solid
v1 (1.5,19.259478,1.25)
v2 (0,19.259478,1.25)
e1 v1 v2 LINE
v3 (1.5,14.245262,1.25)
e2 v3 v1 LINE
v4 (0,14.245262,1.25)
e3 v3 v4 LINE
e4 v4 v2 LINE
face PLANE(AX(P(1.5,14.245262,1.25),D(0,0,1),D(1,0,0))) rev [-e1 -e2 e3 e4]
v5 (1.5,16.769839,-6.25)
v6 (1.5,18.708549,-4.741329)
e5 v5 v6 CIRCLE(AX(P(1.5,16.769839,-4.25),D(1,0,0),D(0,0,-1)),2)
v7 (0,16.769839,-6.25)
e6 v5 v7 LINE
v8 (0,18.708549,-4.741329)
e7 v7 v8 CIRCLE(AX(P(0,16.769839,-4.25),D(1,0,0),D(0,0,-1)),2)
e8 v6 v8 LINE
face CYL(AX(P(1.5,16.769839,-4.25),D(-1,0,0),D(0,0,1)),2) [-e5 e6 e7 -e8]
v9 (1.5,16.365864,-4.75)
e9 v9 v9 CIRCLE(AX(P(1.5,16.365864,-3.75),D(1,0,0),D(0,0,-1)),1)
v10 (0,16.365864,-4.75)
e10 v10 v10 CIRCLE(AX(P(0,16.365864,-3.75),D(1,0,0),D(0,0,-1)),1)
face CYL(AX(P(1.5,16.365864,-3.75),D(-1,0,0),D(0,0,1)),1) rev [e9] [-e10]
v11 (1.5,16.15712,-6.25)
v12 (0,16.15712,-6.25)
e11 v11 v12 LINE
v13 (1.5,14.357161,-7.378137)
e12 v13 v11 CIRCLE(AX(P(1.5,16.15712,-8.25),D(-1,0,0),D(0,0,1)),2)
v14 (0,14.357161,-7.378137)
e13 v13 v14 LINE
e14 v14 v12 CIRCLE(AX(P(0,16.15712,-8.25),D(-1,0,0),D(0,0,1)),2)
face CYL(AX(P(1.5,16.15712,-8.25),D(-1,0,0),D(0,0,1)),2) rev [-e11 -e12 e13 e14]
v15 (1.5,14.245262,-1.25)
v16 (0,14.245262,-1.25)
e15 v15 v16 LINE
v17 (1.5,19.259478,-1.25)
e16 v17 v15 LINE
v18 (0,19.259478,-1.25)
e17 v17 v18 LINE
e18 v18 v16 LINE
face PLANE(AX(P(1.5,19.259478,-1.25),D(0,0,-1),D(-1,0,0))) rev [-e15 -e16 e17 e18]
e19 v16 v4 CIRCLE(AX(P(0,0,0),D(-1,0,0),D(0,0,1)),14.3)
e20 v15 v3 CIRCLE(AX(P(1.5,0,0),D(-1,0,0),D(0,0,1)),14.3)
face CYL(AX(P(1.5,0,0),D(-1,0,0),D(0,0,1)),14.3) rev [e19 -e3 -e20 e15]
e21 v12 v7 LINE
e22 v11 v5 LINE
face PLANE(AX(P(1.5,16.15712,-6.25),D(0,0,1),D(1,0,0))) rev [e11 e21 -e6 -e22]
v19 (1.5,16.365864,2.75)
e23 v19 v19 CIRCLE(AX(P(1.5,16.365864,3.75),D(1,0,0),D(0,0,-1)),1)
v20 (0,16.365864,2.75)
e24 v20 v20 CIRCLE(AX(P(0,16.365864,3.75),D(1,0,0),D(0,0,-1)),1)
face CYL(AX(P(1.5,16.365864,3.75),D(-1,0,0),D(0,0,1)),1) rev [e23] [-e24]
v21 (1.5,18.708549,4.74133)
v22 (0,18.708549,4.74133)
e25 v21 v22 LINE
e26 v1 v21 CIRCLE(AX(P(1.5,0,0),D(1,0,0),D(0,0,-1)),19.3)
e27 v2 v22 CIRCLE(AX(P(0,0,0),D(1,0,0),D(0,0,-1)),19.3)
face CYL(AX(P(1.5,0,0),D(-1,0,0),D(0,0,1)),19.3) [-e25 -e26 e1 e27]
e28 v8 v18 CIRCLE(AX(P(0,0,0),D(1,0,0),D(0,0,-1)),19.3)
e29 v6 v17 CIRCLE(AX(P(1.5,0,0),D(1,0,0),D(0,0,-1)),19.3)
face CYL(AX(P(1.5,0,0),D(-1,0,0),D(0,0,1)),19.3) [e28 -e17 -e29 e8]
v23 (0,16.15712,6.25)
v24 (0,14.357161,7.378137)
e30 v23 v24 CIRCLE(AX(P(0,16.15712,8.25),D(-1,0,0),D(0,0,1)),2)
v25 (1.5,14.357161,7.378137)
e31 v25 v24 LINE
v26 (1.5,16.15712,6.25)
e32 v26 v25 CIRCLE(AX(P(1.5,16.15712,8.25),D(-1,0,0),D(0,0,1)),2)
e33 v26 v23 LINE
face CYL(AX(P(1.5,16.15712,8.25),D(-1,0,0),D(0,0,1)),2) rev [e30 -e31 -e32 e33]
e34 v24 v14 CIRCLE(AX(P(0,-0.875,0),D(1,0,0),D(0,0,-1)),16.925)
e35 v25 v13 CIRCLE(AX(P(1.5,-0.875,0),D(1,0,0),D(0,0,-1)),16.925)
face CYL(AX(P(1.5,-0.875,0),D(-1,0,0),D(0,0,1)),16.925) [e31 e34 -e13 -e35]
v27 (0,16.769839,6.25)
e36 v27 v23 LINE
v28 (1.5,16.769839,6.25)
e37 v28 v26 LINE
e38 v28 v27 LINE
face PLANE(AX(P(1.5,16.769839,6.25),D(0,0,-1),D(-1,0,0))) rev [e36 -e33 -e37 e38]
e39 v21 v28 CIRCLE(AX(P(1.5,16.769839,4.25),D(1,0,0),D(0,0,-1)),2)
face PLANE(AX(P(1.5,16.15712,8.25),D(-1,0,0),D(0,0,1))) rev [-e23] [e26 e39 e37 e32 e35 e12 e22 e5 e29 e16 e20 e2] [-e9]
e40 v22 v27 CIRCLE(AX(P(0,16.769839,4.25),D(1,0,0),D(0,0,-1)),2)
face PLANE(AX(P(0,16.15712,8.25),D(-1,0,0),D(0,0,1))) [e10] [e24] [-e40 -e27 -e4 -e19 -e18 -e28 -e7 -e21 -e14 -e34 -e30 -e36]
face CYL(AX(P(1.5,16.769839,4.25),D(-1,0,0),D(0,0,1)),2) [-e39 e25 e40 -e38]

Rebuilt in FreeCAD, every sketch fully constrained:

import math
import FreeCAD as App
import Part
import Sketcher
Q = App.Units.Quantity

doc = App.newDocument("Part")
body = doc.addObject("PartDesign::Body", "Body")

sketch1 = body.newObject("Sketcher::SketchObject", "Sketch")
sketch1.AttachmentSupport = (doc.getObject("YZ_Plane"), [""])
sketch1.MapMode = "FlatFace"
sketch1.addGeometry([
    Part.LineSegment(App.Vector(16.2, -6.2, 0), App.Vector(16.8, -6.2, 0)),
    Part.ArcOfCircle(Part.Circle(App.Vector(16.8, -4.2, 0), App.Vector(0, 0, 1), 2), math.radians(-90), math.radians(-14)),
    Part.ArcOfCircle(Part.Circle(App.Vector(0, 0, 0), App.Vector(0, 0, 1), 19.3), math.radians(-14.22), math.radians(-3.71)),
    Part.LineSegment(App.Vector(19.3, -1.2, 0), App.Vector(14.2, -1.2, 0)),
    Part.ArcOfCircle(Part.Circle(App.Vector(0, 0, 0), App.Vector(0, 0, 1), 14.3), math.radians(5), math.radians(355)),
    Part.LineSegment(App.Vector(14.2, 1.2, 0), App.Vector(19.3, 1.2, 0)),
    Part.ArcOfCircle(Part.Circle(App.Vector(0, 0, 0), App.Vector(0, 0, 1), 19.3), math.radians(3.71), math.radians(14.22)),
    Part.ArcOfCircle(Part.Circle(App.Vector(16.8, 4.2, 0), App.Vector(0, 0, 1), 2), math.radians(14), math.radians(90)),
    Part.LineSegment(App.Vector(16.8, 6.2, 0), App.Vector(16.2, 6.2, 0)),
    Part.ArcOfCircle(Part.Circle(App.Vector(16.2, 8.3, 0), App.Vector(0, 0, 1), 2), math.radians(-154), math.radians(-90)),
    Part.ArcOfCircle(Part.Circle(App.Vector(-0.9, 0, 0), App.Vector(0, 0, 1), 16.9), math.radians(26), math.radians(334)),
    Part.ArcOfCircle(Part.Circle(App.Vector(16.2, -8.2, 0), App.Vector(0, 0, 1), 2), math.radians(90), math.radians(154)),
    Part.Circle(App.Vector(16.4, 3.8, 0), App.Vector(0, 0, 1), 1),
    Part.Circle(App.Vector(16.4, -3.8, 0), App.Vector(0, 0, 1), 1),
], False)
sketch1.addConstraint([
    Sketcher.Constraint("Tangent", 0, 2, 1, 1),
    Sketcher.Constraint("Tangent", 1, 2, 2, 1),
    Sketcher.Constraint("Coincident", 2, 2, 3, 1),
    Sketcher.Constraint("Coincident", 3, 2, 4, 2),
    Sketcher.Constraint("Coincident", 4, 1, 5, 1),
    Sketcher.Constraint("Coincident", 5, 2, 6, 1),
    Sketcher.Constraint("Tangent", 6, 2, 7, 1),
    Sketcher.Constraint("Tangent", 7, 2, 8, 1),
    Sketcher.Constraint("Tangent", 8, 2, 9, 2),
    Sketcher.Constraint("Tangent", 9, 1, 10, 1),
    Sketcher.Constraint("Tangent", 10, 2, 11, 2),
    Sketcher.Constraint("Tangent", 11, 1, 0, 1),
    Sketcher.Constraint("Horizontal", 0),
    Sketcher.Constraint("Horizontal", 3),
    Sketcher.Constraint("Horizontal", 5),
    Sketcher.Constraint("Horizontal", 8),
    Sketcher.Constraint("Coincident", 2, 3, -1, 1),
    Sketcher.Constraint("Coincident", 4, 3, -1, 1),
    Sketcher.Constraint("Coincident", 6, 3, -1, 1),
    Sketcher.Constraint("Equal", 2, 6),
    Sketcher.Constraint("Equal", 1, 7),
    Sketcher.Constraint("Equal", 7, 9),
    Sketcher.Constraint("Equal", 9, 11),
    Sketcher.Constraint("Equal", 12, 13),
    Sketcher.Constraint("Symmetric", 9, 3, 11, 3, -1),
    Sketcher.Constraint("Symmetric", 12, 3, 13, 3, -1),
    Sketcher.Constraint("Vertical", 3, 2, 4, 1),
    Sketcher.Constraint("Diameter", 12, Q("2 mm")),
    Sketcher.Constraint("Radius", 1, Q("2 mm")),
    Sketcher.Constraint("Radius", 2, Q("19.3 mm")),
    Sketcher.Constraint("Radius", 4, Q("14.3 mm")),
    Sketcher.Constraint("Radius", 10, Q("16.925 mm")),
    Sketcher.Constraint("DistanceY", 1, 3, 12, 3, Q("8 mm")),
    Sketcher.Constraint("DistanceY", 1, 3, 2, 2, Q("3 mm")),
    Sketcher.Constraint("DistanceY", 1, 3, 7, 3, Q("8.5 mm")),
    Sketcher.Constraint("DistanceX", 10, 3, -1, 1, Q("0.875 mm")),
    Sketcher.Constraint("DistanceX", 3, 2, 13, 3, Q("2.120602 mm")),
])
pad1 = body.newObject("PartDesign::Pad", "Pad")
pad1.Profile = sketch1
pad1.Length = 1.5

doc.recompute()
